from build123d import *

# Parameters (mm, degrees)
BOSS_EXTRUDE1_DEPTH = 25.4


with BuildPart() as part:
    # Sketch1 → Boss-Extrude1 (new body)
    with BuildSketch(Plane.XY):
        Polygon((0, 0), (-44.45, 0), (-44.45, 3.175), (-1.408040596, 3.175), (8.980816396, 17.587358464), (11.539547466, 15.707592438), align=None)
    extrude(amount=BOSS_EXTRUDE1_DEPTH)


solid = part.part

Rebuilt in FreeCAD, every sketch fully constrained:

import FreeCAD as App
import Part
import Sketcher

V = App.Vector
Q = App.Units.Quantity


def add_polygon(sketch, points):
    """Adds a closed chain of lines whose ends are joined by coincident constraints."""
    first, n = sketch.GeometryCount, len(points)
    for a, b in zip(points, points[1:] + points[:1]):
        sketch.addGeometry(Part.LineSegment(App.Vector(*a, 0), App.Vector(*b, 0)), False)
    for i in range(n):
        sketch.addConstraint(Sketcher.Constraint("Coincident", first + i, 2, first + (i + 1) % n, 1))

doc = App.newDocument("Part")
body = doc.addObject("PartDesign::Body", "Body")

# Sketch on XY plane
sketch1 = doc.addObject("Sketcher::SketchObject", "Sketch")
body.addObject(sketch1)
sketch1.AttachmentSupport = (doc.XY_Plane, [""])
sketch1.MapMode = "FlatFace"
add_polygon(sketch1, [(-44.5, 0), (0, 0), (11.5, 15.7), (9, 17.6), (-1.4, 3.2), (-44.5, 3.2)])  # lines 0-5
sketch1.addConstraint(Sketcher.Constraint("Horizontal", 0))
sketch1.addConstraint(Sketcher.Constraint("Horizontal", 4))
sketch1.addConstraint(Sketcher.Constraint("Vertical", 5))
sketch1.addConstraint(Sketcher.Constraint("Coincident", 0, 2, -1, 1))
sketch1.addConstraint(Sketcher.Constraint("Perpendicular", 1, 2))
sketch1.addConstraint(Sketcher.Constraint("DistanceX", 0, 1, 0, 2, Q("1.75 in")))
sketch1.addConstraint(Sketcher.Constraint("DistanceY", 5, 2, 5, 1, Q("0.125 in")))
sketch1.addConstraint(Sketcher.Constraint("Distance", 2, Q("0.125 in")))
sketch1.addConstraint(Sketcher.Constraint("DistanceX", 4, 2, 4, 1, Q("43.041959 mm")))
sketch1.addConstraint(Sketcher.Constraint("DistanceY", -1, 1, 2, 2, Q("17.587358 mm")))
sketch1.addConstraint(Sketcher.Constraint("DistanceX", 2, 2, 1, 2, Q("2.558731 mm")))
pad1 = doc.addObject("PartDesign::Pad", "Pad")
body.addObject(pad1)
pad1.Profile = sketch1
pad1.Length = Q("1 in")

doc.recompute()
